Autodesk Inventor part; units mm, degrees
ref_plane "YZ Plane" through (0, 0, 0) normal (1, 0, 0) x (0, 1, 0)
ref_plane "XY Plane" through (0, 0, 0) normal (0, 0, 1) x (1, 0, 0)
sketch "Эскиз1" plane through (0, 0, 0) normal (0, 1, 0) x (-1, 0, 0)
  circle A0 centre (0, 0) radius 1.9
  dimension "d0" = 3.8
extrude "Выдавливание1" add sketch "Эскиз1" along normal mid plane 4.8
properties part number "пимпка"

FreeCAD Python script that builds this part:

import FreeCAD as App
import Part
import Sketcher

V = App.Vector

doc = App.newDocument("Part")
body = doc.addObject("PartDesign::Body", "Body")

# Sketch on XZ plane
sketch1 = body.newObject("Sketcher::SketchObject", "Sketch")
sketch1.AttachmentSupport = (doc.getObject("XZ_Plane"), [""])
sketch1.MapMode = "FlatFace"
sketch1.addGeometry(Part.Circle(V(0, 0, 0), V(0, 0, 1), 1.9), False)
sketch1.addConstraint(Sketcher.Constraint("Coincident", 0, 3, -1, 1))
sketch1.addConstraint(Sketcher.Constraint("Diameter", 0, 3.8))
pad1 = body.newObject("PartDesign::Pad", "Pad")
pad1.Profile = sketch1
pad1.Length = 4.8
pad1.Midplane = True

doc.recompute()
